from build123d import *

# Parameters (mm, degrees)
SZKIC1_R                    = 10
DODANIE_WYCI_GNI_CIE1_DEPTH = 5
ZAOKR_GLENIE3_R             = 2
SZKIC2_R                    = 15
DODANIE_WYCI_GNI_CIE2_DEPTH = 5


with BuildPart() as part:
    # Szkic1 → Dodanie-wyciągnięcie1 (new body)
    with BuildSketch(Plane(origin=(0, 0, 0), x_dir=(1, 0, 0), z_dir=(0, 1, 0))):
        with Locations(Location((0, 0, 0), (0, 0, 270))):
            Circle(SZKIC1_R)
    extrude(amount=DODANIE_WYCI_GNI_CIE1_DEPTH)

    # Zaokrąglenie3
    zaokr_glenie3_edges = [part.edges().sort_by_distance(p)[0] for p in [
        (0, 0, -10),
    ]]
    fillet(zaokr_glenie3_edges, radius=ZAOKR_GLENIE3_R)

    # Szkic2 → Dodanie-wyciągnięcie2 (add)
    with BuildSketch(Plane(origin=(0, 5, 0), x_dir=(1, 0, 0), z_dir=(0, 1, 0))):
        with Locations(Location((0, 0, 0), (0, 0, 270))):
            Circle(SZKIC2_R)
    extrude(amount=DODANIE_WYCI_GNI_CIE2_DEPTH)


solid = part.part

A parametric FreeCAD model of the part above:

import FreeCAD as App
import Part
import Sketcher


def edges_at(feature, points):
    """Names of the edges that pass closest to the given points."""
    edges = feature.Shape.Edges
    near = lambda p: min(range(len(edges)), key=lambda i: edges[i].distToShape(Part.Vertex(*p))[0])
    return sorted({f"Edge{near(p) + 1}" for p in points})

doc = App.newDocument("Part")
params = doc.addObject("Spreadsheet::Sheet", "Params")
for row, (alias, value) in enumerate([
    ("sketch1_diameter", "20 mm"),
    ("pad1_length", "5 mm"),
    ("fillet_radius", "2 mm"),
    ("sketch2_diameter", "30 mm"),
    ("pad2_length", "5 mm"),
], start=1):
    params.set(f"A{row}", alias)
    params.set(f"B{row}", "=" + value)
    params.setAlias(f"B{row}", alias)

body = doc.addObject("PartDesign::Body", "Body")

sketch1 = body.newObject("Sketcher::SketchObject", "Sketch")
sketch1.AttachmentSupport = (doc.getObject("XZ_Plane"), [""])
sketch1.MapMode = "FlatFace"
sketch1.addGeometry(Part.Circle(App.Vector(0, 0, 0), App.Vector(0, 0, 1), 10), False)
sketch1.addConstraint([
    Sketcher.Constraint("Coincident", 0, 3, -1, 1),
    Sketcher.Constraint("Diameter", 0, 20.0),
])
sketch1.setExpression("Constraints[1]", "Params.sketch1_diameter")
pad1 = body.newObject("PartDesign::Pad", "Pad")
pad1.Profile = sketch1
pad1.setExpression("Length", "Params.pad1_length")
pad1.Reversed = True
doc.recompute()

fillet = body.newObject("PartDesign::Fillet", "Fillet")
fillet.Base = (pad1, edges_at(pad1, [(0, 0, -10)]))
fillet.setExpression("Radius", "Params.fillet_radius")

sketch2 = body.newObject("Sketcher::SketchObject", "Sketch001")
sketch2.AttachmentSupport = (doc.getObject("XZ_Plane"), [""])
sketch2.MapMode = "FlatFace"
sketch2.AttachmentOffset = App.Placement(App.Vector(0, 0, -5), App.Rotation())
sketch2.addGeometry(Part.Circle(App.Vector(0, 0, 0), App.Vector(0, 0, 1), 15), False)
sketch2.addConstraint([
    Sketcher.Constraint("Coincident", 0, 3, -1, 1),
    Sketcher.Constraint("Diameter", 0, 30.0),
])
sketch2.setExpression("Constraints[1]", "Params.sketch2_diameter")
pad2 = body.newObject("PartDesign::Pad", "Pad001")
pad2.Profile = sketch2
pad2.setExpression("Length", "Params.pad2_length")
pad2.Reversed = True

doc.recompute()
